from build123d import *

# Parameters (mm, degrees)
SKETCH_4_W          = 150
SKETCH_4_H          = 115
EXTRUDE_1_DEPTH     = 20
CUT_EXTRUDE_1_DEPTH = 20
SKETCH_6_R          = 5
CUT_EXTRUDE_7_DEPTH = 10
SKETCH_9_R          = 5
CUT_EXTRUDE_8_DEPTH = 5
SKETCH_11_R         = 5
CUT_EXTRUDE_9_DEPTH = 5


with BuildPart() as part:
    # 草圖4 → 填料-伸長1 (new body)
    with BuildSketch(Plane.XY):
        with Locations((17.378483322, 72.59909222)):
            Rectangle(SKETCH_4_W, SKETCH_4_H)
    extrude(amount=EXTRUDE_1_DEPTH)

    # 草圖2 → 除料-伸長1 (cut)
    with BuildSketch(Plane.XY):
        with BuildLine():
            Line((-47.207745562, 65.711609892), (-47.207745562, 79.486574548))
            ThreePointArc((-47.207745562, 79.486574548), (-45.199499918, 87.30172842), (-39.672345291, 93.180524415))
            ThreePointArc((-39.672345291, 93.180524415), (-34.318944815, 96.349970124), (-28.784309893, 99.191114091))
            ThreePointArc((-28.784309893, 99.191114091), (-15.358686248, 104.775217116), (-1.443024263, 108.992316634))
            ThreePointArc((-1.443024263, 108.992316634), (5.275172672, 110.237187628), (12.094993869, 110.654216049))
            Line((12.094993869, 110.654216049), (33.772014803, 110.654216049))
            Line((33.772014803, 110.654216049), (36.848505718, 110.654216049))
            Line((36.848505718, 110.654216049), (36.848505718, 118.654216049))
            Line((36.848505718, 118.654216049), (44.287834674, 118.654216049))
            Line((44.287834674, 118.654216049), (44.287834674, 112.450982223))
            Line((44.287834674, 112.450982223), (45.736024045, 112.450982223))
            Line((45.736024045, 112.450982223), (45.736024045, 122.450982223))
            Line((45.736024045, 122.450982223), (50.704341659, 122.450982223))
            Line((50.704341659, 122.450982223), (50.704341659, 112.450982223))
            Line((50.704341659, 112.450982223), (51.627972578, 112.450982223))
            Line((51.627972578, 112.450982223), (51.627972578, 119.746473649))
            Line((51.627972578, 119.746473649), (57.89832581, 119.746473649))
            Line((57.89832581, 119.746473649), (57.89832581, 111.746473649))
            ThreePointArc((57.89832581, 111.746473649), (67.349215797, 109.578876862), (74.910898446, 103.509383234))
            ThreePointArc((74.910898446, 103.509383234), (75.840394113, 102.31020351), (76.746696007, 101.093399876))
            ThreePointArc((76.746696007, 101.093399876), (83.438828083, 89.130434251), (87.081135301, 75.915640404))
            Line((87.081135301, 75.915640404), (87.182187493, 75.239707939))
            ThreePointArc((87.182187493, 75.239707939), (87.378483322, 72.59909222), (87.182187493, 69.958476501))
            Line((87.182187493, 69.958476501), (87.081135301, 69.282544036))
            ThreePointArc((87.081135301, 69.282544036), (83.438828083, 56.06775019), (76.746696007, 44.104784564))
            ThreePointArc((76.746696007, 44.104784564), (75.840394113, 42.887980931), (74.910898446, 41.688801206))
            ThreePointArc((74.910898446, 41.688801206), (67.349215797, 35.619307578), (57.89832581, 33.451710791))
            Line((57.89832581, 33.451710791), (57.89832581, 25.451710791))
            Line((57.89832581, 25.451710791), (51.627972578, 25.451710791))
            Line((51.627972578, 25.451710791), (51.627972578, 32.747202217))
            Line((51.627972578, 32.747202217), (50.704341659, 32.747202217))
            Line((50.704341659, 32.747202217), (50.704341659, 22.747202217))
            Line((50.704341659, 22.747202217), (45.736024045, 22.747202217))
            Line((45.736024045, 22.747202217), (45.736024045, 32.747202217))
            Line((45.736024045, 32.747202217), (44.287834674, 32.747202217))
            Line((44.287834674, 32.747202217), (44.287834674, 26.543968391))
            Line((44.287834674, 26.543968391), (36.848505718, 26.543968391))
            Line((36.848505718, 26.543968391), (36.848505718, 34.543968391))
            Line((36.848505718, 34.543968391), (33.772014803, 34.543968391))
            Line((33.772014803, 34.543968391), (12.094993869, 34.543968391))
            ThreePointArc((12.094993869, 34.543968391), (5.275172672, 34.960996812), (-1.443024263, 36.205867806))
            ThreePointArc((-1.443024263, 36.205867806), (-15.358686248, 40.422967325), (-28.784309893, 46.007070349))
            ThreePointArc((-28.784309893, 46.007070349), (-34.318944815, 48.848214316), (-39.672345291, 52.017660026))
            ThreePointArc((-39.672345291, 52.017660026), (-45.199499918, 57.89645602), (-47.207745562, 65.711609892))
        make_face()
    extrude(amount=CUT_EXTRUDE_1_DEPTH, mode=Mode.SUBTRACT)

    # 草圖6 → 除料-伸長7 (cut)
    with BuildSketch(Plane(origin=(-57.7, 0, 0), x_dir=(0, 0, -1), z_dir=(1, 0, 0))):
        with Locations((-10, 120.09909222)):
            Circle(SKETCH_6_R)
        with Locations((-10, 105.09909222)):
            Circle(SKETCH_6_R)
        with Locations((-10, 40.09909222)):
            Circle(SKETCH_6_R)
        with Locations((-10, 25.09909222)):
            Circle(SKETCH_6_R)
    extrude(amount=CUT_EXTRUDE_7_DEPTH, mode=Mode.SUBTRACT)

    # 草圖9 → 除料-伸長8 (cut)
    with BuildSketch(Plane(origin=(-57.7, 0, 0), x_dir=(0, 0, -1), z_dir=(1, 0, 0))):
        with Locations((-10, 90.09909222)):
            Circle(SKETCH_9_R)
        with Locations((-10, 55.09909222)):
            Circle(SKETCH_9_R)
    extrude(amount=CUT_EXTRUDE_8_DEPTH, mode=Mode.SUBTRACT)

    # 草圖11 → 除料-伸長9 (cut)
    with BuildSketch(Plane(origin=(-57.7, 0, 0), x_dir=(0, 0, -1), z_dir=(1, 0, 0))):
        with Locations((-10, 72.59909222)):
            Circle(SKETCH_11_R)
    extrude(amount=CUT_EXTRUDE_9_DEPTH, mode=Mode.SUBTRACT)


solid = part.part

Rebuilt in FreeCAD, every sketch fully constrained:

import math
import FreeCAD as App
import Part
import Sketcher
Q = App.Units.Quantity

doc = App.newDocument("Part")
params = doc.addObject("Spreadsheet::Sheet", "Params")
for row, (alias, value) in enumerate([
    ("sketch1_width", "150 mm"),
    ("sketch1_height", "115 mm"),
    ("pad1_length", "20 mm"),
    ("sketch2_height", "8 mm"),
    ("sketch2_height2", "10 mm"),
    ("pocket1_length", "20 mm"),
    ("sketch3_diameter", "10 mm"),
    ("pocket2_length", "10 mm"),
    ("sketch4_diameter", "10 mm"),
    ("pocket3_length", "5 mm"),
    ("sketch5_diameter", "10 mm"),
    ("pocket4_length", "5 mm"),
], start=1):
    params.set(f"A{row}", alias)
    params.set(f"B{row}", "=" + value)
    params.setAlias(f"B{row}", alias)

body = doc.addObject("PartDesign::Body", "Body")

sketch1 = body.newObject("Sketcher::SketchObject", "Sketch")
sketch1.AttachmentSupport = (doc.getObject("XY_Plane"), [""])
sketch1.MapMode = "FlatFace"
sketch1.addGeometry(Part.LineSegment(App.Vector(-57.621517, 130.099092, 0), App.Vector(-57.621517, 15.099092, 0)), False)
sketch1.addGeometry(Part.LineSegment(App.Vector(-57.621517, 15.099092, 0), App.Vector(92.378483, 15.099092, 0)), False)
sketch1.addGeometry(Part.LineSegment(App.Vector(92.378483, 15.099092, 0), App.Vector(92.378483, 130.099092, 0)), False)
sketch1.addGeometry(Part.LineSegment(App.Vector(92.378483, 130.099092, 0), App.Vector(-57.621517, 130.099092, 0)), False)
sketch1.addConstraint(Sketcher.Constraint("Coincident", 0, 2, 1, 1))
sketch1.addConstraint(Sketcher.Constraint("Coincident", 1, 2, 2, 1))
sketch1.addConstraint(Sketcher.Constraint("Coincident", 2, 2, 3, 1))
sketch1.addConstraint(Sketcher.Constraint("Coincident", 3, 2, 0, 1))
sketch1.addConstraint(Sketcher.Constraint("Vertical", 0))
sketch1.addConstraint(Sketcher.Constraint("Horizontal", 1))
sketch1.addConstraint(Sketcher.Constraint("Vertical", 2))
sketch1.addConstraint(Sketcher.Constraint("Horizontal", 3))
sketch1.addConstraint(Sketcher.Constraint("DistanceX", 1, 1, 1, 2, Q("150 mm")))
sketch1.addConstraint(Sketcher.Constraint("DistanceY", 0, 2, 0, 1, Q("115 mm")))
sketch1.addConstraint(Sketcher.Constraint("DistanceX", 0, 2, -1, 1, Q("57.621517 mm")))
sketch1.addConstraint(Sketcher.Constraint("DistanceY", -1, 1, 0, 2, Q("15.099092 mm")))
sketch1.setExpression("Constraints[8]", "Params.sketch1_width")
sketch1.setExpression("Constraints[9]", "Params.sketch1_height")
pad1 = body.newObject("PartDesign::Pad", "Pad")
pad1.Profile = sketch1
pad1.setExpression("Length", "Params.pad1_length")

sketch2 = body.newObject("Sketcher::SketchObject", "Sketch001")
sketch2.AttachmentSupport = (doc.getObject("XY_Plane"), [""])
sketch2.MapMode = "FlatFace"
sketch2.addGeometry(Part.LineSegment(App.Vector(-47.207746, 79.486575, 0), App.Vector(-47.207746, 65.71161, 0)), False)
sketch2.addGeometry(Part.ArcOfCircle(Part.Circle(App.Vector(-30.997159, 65.71161, 0), App.Vector(0, 0, 1), 16.210587), math.radians(-180), math.radians(-122.354465)), False)
sketch2.addGeometry(Part.ArcOfCircle(Part.Circle(App.Vector(15.561245, 139.204951, 0), App.Vector(0, 0, 1), 103.210335), math.radians(-122.354465), math.radians(-115.446109)), False)
sketch2.addGeometry(Part.ArcOfCircle(Part.Circle(App.Vector(33.772015, 177.477224, 0), App.Vector(0, 0, 1), 145.594283), math.radians(-115.446109), math.radians(-103.996996)), False)
sketch2.addGeometry(Part.ArcOfCircle(Part.Circle(App.Vector(12.094994, 90.516021, 0), App.Vector(0, 0, 1), 55.972053), math.radians(-103.996996), math.radians(-90)), False)
sketch2.addGeometry(Part.LineSegment(App.Vector(12.094994, 34.543968, 0), App.Vector(36.848506, 34.543968, 0)), False)
sketch2.addGeometry(Part.LineSegment(App.Vector(36.848506, 34.543968, 0), App.Vector(36.848506, 26.543968, 0)), False)
sketch2.addGeometry(Part.LineSegment(App.Vector(36.848506, 26.543968, 0), App.Vector(44.287835, 26.543968, 0)), False)
sketch2.addGeometry(Part.LineSegment(App.Vector(44.287835, 26.543968, 0), App.Vector(44.287835, 32.747202, 0)), False)
sketch2.addGeometry(Part.LineSegment(App.Vector(44.287835, 32.747202, 0), App.Vector(45.736024, 32.747202, 0)), False)
sketch2.addGeometry(Part.LineSegment(App.Vector(45.736024, 32.747202, 0), App.Vector(45.736024, 22.747202, 0)), False)
sketch2.addGeometry(Part.LineSegment(App.Vector(45.736024, 22.747202, 0), App.Vector(50.704342, 22.747202, 0)), False)
sketch2.addGeometry(Part.LineSegment(App.Vector(50.704342, 22.747202, 0), App.Vector(50.704342, 32.747202, 0)), False)
sketch2.addGeometry(Part.LineSegment(App.Vector(50.704342, 32.747202, 0), App.Vector(51.627973, 32.747202, 0)), False)
sketch2.addGeometry(Part.LineSegment(App.Vector(51.627973, 32.747202, 0), App.Vector(51.627973, 25.451711, 0)), False)
sketch2.addGeometry(Part.LineSegment(App.Vector(51.627973, 25.451711, 0), App.Vector(57.898326, 25.451711, 0)), False)
sketch2.addGeometry(Part.LineSegment(App.Vector(57.898326, 25.451711, 0), App.Vector(57.898326, 33.451711, 0)), False)
sketch2.addGeometry(Part.ArcOfCircle(Part.Circle(App.Vector(57.898326, 55.138816, 0), App.Vector(0, 0, 1), 21.687105), math.radians(-90), math.radians(-38.329636)), False)
sketch2.addGeometry(Part.ArcOfCircle(Part.Circle(App.Vector(12.919263, 90.698931, 0), App.Vector(0, 0, 1), 79.025032), math.radians(-38.329636), math.radians(-36.129514)), False)
sketch2.addGeometry(Part.ArcOfCircle(Part.Circle(App.Vector(30.712767, 77.709639, 0), App.Vector(0, 0, 1), 56.994814), math.radians(-36.129514), math.radians(-8.50277)), False)
sketch2.addGeometry(Part.LineSegment(App.Vector(87.081135, 69.282544, 0), App.Vector(87.182187, 69.958477, 0)), False)
sketch2.addGeometry(Part.ArcOfCircle(Part.Circle(App.Vector(69.519257, 72.599092, 0), App.Vector(0, 0, 1), 17.859227), math.radians(-8.50277), math.radians(8.50277)), False)
sketch2.addGeometry(Part.LineSegment(App.Vector(87.182187, 75.239708, 0), App.Vector(87.081135, 75.91564, 0)), False)
sketch2.addGeometry(Part.ArcOfCircle(Part.Circle(App.Vector(30.712767, 67.488545, 0), App.Vector(0, 0, 1), 56.994814), math.radians(8.50277), math.radians(36.129514)), False)
sketch2.addGeometry(Part.ArcOfCircle(Part.Circle(App.Vector(12.919266, 54.499256, 0), App.Vector(0, 0, 1), 79.025028), math.radians(36.129514), math.radians(38.329636)), False)
sketch2.addGeometry(Part.ArcOfCircle(Part.Circle(App.Vector(57.898326, 90.059369, 0), App.Vector(0, 0, 1), 21.687105), math.radians(38.329636), math.radians(90)), False)
sketch2.addGeometry(Part.LineSegment(App.Vector(57.898326, 111.746474, 0), App.Vector(57.898326, 119.746474, 0)), False)
sketch2.addGeometry(Part.LineSegment(App.Vector(57.898326, 119.746474, 0), App.Vector(51.627973, 119.746474, 0)), False)
sketch2.addGeometry(Part.LineSegment(App.Vector(51.627973, 119.746474, 0), App.Vector(51.627973, 112.450982, 0)), False)
sketch2.addGeometry(Part.LineSegment(App.Vector(51.627973, 112.450982, 0), App.Vector(50.704342, 112.450982, 0)), False)
sketch2.addGeometry(Part.LineSegment(App.Vector(50.704342, 112.450982, 0), App.Vector(50.704342, 122.450982, 0)), False)
sketch2.addGeometry(Part.LineSegment(App.Vector(50.704342, 122.450982, 0), App.Vector(45.736024, 122.450982, 0)), False)
sketch2.addGeometry(Part.LineSegment(App.Vector(45.736024, 122.450982, 0), App.Vector(45.736024, 112.450982, 0)), False)
sketch2.addGeometry(Part.LineSegment(App.Vector(45.736024, 112.450982, 0), App.Vector(44.287835, 112.450982, 0)), False)
sketch2.addGeometry(Part.LineSegment(App.Vector(44.287835, 112.450982, 0), App.Vector(44.287835, 118.654216, 0)), False)
sketch2.addGeometry(Part.LineSegment(App.Vector(44.287835, 118.654216, 0), App.Vector(36.848506, 118.654216, 0)), False)
sketch2.addGeometry(Part.LineSegment(App.Vector(36.848506, 118.654216, 0), App.Vector(36.848506, 110.654216, 0)), False)
sketch2.addGeometry(Part.LineSegment(App.Vector(36.848506, 110.654216, 0), App.Vector(12.094994, 110.654216, 0)), False)
sketch2.addGeometry(Part.ArcOfCircle(Part.Circle(App.Vector(12.094994, 54.682163, 0), App.Vector(0, 0, 1), 55.972053), math.radians(90), math.radians(103.996996)), False)
sketch2.addGeometry(Part.ArcOfCircle(Part.Circle(App.Vector(33.772015, -32.27904, 0), App.Vector(0, 0, 1), 145.594282), math.radians(103.996996), math.radians(115.446109)), False)
sketch2.addGeometry(Part.ArcOfCircle(Part.Circle(App.Vector(15.561245, 5.993233, 0), App.Vector(0, 0, 1), 103.210335), math.radians(115.446109), math.radians(122.354465)), False)
sketch2.addGeometry(Part.ArcOfCircle(Part.Circle(App.Vector(-30.997159, 79.486575, 0), App.Vector(0, 0, 1), 16.210587), math.radians(122.354465), math.radians(180)), False)
sketch2.addConstraint(Sketcher.Constraint("Tangent", 0, 2, 1, 1))
sketch2.addConstraint(Sketcher.Constraint("Tangent", 1, 2, 2, 1))
sketch2.addConstraint(Sketcher.Constraint("Tangent", 2, 2, 3, 1))
sketch2.addConstraint(Sketcher.Constraint("Tangent", 3, 2, 4, 1))
sketch2.addConstraint(Sketcher.Constraint("Tangent", 4, 2, 5, 1))
sketch2.addConstraint(Sketcher.Constraint("Coincident", 5, 2, 6, 1))
sketch2.addConstraint(Sketcher.Constraint("Coincident", 6, 2, 7, 1))
sketch2.addConstraint(Sketcher.Constraint("Coincident", 7, 2, 8, 1))
sketch2.addConstraint(Sketcher.Constraint("Coincident", 8, 2, 9, 1))
sketch2.addConstraint(Sketcher.Constraint("Coincident", 9, 2, 10, 1))
sketch2.addConstraint(Sketcher.Constraint("Coincident", 10, 2, 11, 1))
sketch2.addConstraint(Sketcher.Constraint("Coincident", 11, 2, 12, 1))
sketch2.addConstraint(Sketcher.Constraint("Coincident", 12, 2, 13, 1))
sketch2.addConstraint(Sketcher.Constraint("Coincident", 13, 2, 14, 1))
sketch2.addConstraint(Sketcher.Constraint("Coincident", 14, 2, 15, 1))
sketch2.addConstraint(Sketcher.Constraint("Coincident", 15, 2, 16, 1))
sketch2.addConstraint(Sketcher.Constraint("Coincident", 16, 2, 17, 1))
sketch2.addConstraint(Sketcher.Constraint("Tangent", 17, 2, 18, 1))
sketch2.addConstraint(Sketcher.Constraint("Tangent", 18, 2, 19, 1))
sketch2.addConstraint(Sketcher.Constraint("Tangent", 19, 2, 20, 1))
sketch2.addConstraint(Sketcher.Constraint("Tangent", 20, 2, 21, 1))
sketch2.addConstraint(Sketcher.Constraint("Tangent", 21, 2, 22, 1))
sketch2.addConstraint(Sketcher.Constraint("Tangent", 22, 2, 23, 1))
sketch2.addConstraint(Sketcher.Constraint("Tangent", 23, 2, 24, 1))
sketch2.addConstraint(Sketcher.Constraint("Tangent", 24, 2, 25, 1))
sketch2.addConstraint(Sketcher.Constraint("Coincident", 25, 2, 26, 1))
sketch2.addConstraint(Sketcher.Constraint("Coincident", 26, 2, 27, 1))
sketch2.addConstraint(Sketcher.Constraint("Coincident", 27, 2, 28, 1))
sketch2.addConstraint(Sketcher.Constraint("Coincident", 28, 2, 29, 1))
sketch2.addConstraint(Sketcher.Constraint("Coincident", 29, 2, 30, 1))
sketch2.addConstraint(Sketcher.Constraint("Coincident", 30, 2, 31, 1))
sketch2.addConstraint(Sketcher.Constraint("Coincident", 31, 2, 32, 1))
sketch2.addConstraint(Sketcher.Constraint("Coincident", 32, 2, 33, 1))
sketch2.addConstraint(Sketcher.Constraint("Coincident", 33, 2, 34, 1))
sketch2.addConstraint(Sketcher.Constraint("Coincident", 34, 2, 35, 1))
sketch2.addConstraint(Sketcher.Constraint("Coincident", 35, 2, 36, 1))
sketch2.addConstraint(Sketcher.Constraint("Coincident", 36, 2, 37, 1))
sketch2.addConstraint(Sketcher.Constraint("Tangent", 37, 2, 38, 1))
sketch2.addConstraint(Sketcher.Constraint("Tangent", 38, 2, 39, 1))
sketch2.addConstraint(Sketcher.Constraint("Tangent", 39, 2, 40, 1))
sketch2.addConstraint(Sketcher.Constraint("Tangent", 40, 2, 41, 1))
sketch2.addConstraint(Sketcher.Constraint("Tangent", 41, 2, 0, 1))
sketch2.addConstraint(Sketcher.Constraint("Vertical", 0))
sketch2.addConstraint(Sketcher.Constraint("Horizontal", 5))
sketch2.addConstraint(Sketcher.Constraint("Vertical", 6))
sketch2.addConstraint(Sketcher.Constraint("Horizontal", 7))
sketch2.addConstraint(Sketcher.Constraint("Vertical", 8))
sketch2.addConstraint(Sketcher.Constraint("Horizontal", 9))
sketch2.addConstraint(Sketcher.Constraint("Vertical", 10))
sketch2.addConstraint(Sketcher.Constraint("Horizontal", 11))
sketch2.addConstraint(Sketcher.Constraint("Vertical", 12))
sketch2.addConstraint(Sketcher.Constraint("Horizontal", 13))
sketch2.addConstraint(Sketcher.Constraint("Vertical", 14))
sketch2.addConstraint(Sketcher.Constraint("Horizontal", 15))
sketch2.addConstraint(Sketcher.Constraint("Vertical", 16))
sketch2.addConstraint(Sketcher.Constraint("Vertical", 26))
sketch2.addConstraint(Sketcher.Constraint("Horizontal", 27))
sketch2.addConstraint(Sketcher.Constraint("Vertical", 28))
sketch2.addConstraint(Sketcher.Constraint("Horizontal", 29))
sketch2.addConstraint(Sketcher.Constraint("Vertical", 30))
sketch2.addConstraint(Sketcher.Constraint("Horizontal", 31))
sketch2.addConstraint(Sketcher.Constraint("Vertical", 32))
sketch2.addConstraint(Sketcher.Constraint("Horizontal", 33))
sketch2.addConstraint(Sketcher.Constraint("Vertical", 34))
sketch2.addConstraint(Sketcher.Constraint("Horizontal", 35))
sketch2.addConstraint(Sketcher.Constraint("Vertical", 36))
sketch2.addConstraint(Sketcher.Constraint("Horizontal", 37))
sketch2.addConstraint(Sketcher.Constraint("Equal", 19, 23))
sketch2.addConstraint(Sketcher.Constraint("Equal", 17, 25))
sketch2.addConstraint(Sketcher.Constraint("Equal", 4, 38))
sketch2.addConstraint(Sketcher.Constraint("Equal", 3, 39))
sketch2.addConstraint(Sketcher.Constraint("Equal", 2, 40))
sketch2.addConstraint(Sketcher.Constraint("Equal", 1, 41))
sketch2.addConstraint(Sketcher.Constraint("Horizontal", 9, 2, 12, 2))
sketch2.addConstraint(Sketcher.Constraint("Horizontal", 29, 2, 32, 2))
sketch2.addConstraint(Sketcher.Constraint("Vertical", 19, 3, 23, 3))
sketch2.addConstraint(Sketcher.Constraint("Vertical", 17, 3, 25, 3))
sketch2.addConstraint(Sketcher.Constraint("Vertical", 4, 3, 38, 3))
sketch2.addConstraint(Sketcher.Constraint("Vertical", 3, 3, 39, 3))
sketch2.addConstraint(Sketcher.Constraint("Vertical", 2, 3, 40, 3))
sketch2.addConstraint(Sketcher.Constraint("Vertical", 25, 3, 15, 2))
sketch2.addConstraint(Sketcher.Constraint("Vertical", 20, 2, 21, 2))
sketch2.addConstraint(Sketcher.Constraint("Vertical", 18, 2, 23, 2))
sketch2.addConstraint(Sketcher.Constraint("Vertical", 16, 2, 25, 2))
sketch2.addConstraint(Sketcher.Constraint("Vertical", 14, 2, 27, 2))
sketch2.addConstraint(Sketcher.Constraint("Vertical", 12, 2, 29, 2))
sketch2.addConstraint(Sketcher.Constraint("Vertical", 10, 2, 31, 2))
sketch2.addConstraint(Sketcher.Constraint("Vertical", 8, 2, 33, 2))
sketch2.addConstraint(Sketcher.Constraint("Vertical", 6, 2, 35, 2))
sketch2.addConstraint(Sketcher.Constraint("Equal", 6, 16))
sketch2.addConstraint(Sketcher.Constraint("Equal", 16, 26))
sketch2.addConstraint(Sketcher.Constraint("Equal", 14, 28))
sketch2.addConstraint(Sketcher.Constraint("Equal", 12, 30))
sketch2.addConstraint(Sketcher.Constraint("Equal", 8, 34))
sketch2.addConstraint(Sketcher.Constraint("Equal", 26, 36))
sketch2.addConstraint(Sketcher.Constraint("DistanceY", 6, 2, 6, 1, Q("8 mm")))
sketch2.addConstraint(Sketcher.Constraint("DistanceY", 10, 2, 10, 1, Q("10 mm")))
sketch2.addConstraint(Sketcher.Constraint("Radius", 18, Q("79.025032 mm")))
sketch2.addConstraint(Sketcher.Constraint("Radius", 24, Q("79.025028 mm")))
sketch2.addConstraint(Sketcher.Constraint("Radius", 1, Q("16.210587 mm")))
sketch2.addConstraint(Sketcher.Constraint("Radius", 2, Q("103.210335 mm")))
sketch2.addConstraint(Sketcher.Constraint("Radius", 3, Q("145.594283 mm")))
sketch2.addConstraint(Sketcher.Constraint("Radius", 4, Q("55.972053 mm")))
sketch2.addConstraint(Sketcher.Constraint("Radius", 17, Q("21.687105 mm")))
sketch2.addConstraint(Sketcher.Constraint("Radius", 19, Q("56.994814 mm")))
sketch2.addConstraint(Sketcher.Constraint("Radius", 21, Q("17.859227 mm")))
sketch2.addConstraint(Sketcher.Constraint("DistanceX", 5, 1, 5, 2, Q("24.753512 mm")))
sketch2.addConstraint(Sketcher.Constraint("DistanceX", 7, 1, 7, 2, Q("7.439329 mm")))
sketch2.addConstraint(Sketcher.Constraint("DistanceX", 9, 1, 9, 2, Q("1.448189 mm")))
sketch2.addConstraint(Sketcher.Constraint("DistanceX", 13, 1, 13, 2, Q("0.923631 mm")))
sketch2.addConstraint(Sketcher.Constraint("DistanceY", 14, 2, 14, 1, Q("7.295491 mm")))
sketch2.addConstraint(Sketcher.Constraint("DistanceX", -1, 1, 17, 2, Q("74.910898 mm")))
sketch2.addConstraint(Sketcher.Constraint("DistanceY", -1, 1, 17, 2, Q("41.688801 mm")))
sketch2.addConstraint(Sketcher.Constraint("DistanceY", -1, 1, 23, 2, Q("101.0934 mm")))
sketch2.addConstraint(Sketcher.Constraint("DistanceX", 24, 3, 23, 3, Q("17.793501 mm")))
sketch2.addConstraint(Sketcher.Constraint("DistanceX", 0, 2, 1, 2, Q("7.5354 mm")))
sketch2.addConstraint(Sketcher.Constraint("DistanceY", 4, 2, 3, 2, Q("1.661899 mm")))
sketch2.addConstraint(Sketcher.Constraint("DistanceX", 9, 2, 17, 3, Q("12.162302 mm")))
sketch2.addConstraint(Sketcher.Constraint("DistanceY", 13, 2, 17, 2, Q("8.941599 mm")))
sketch2.addConstraint(Sketcher.Constraint("DistanceX", 11, 1, 11, 2, Q("4.968318 mm")))
sketch2.addConstraint(Sketcher.Constraint("DistanceY", 0, 2, 0, 1, Q("13.774965 mm")))
sketch2.addConstraint(Sketcher.Constraint("DistanceY", 8, 1, 8, 2, Q("6.203234 mm")))
sketch2.addConstraint(Sketcher.Constraint("DistanceY", -1, 1, 22, 2, Q("75.91564 mm")))
sketch2.setExpression("Constraints[95]", "Params.sketch2_height")
sketch2.setExpression("Constraints[96]", "Params.sketch2_height2")
pocket1 = body.newObject("PartDesign::Pocket", "Pocket")
pocket1.Profile = sketch2
pocket1.setExpression("Length", "Params.pocket1_length")
pocket1.Reversed = True

sketch3 = body.newObject("Sketcher::SketchObject", "Sketch002")
sketch3.AttachmentSupport = (doc.getObject("YZ_Plane"), [""])
sketch3.MapMode = "FlatFace"
sketch3.AttachmentOffset = App.Placement(App.Vector(0, 0, -57.7), App.Rotation())
sketch3.addGeometry(Part.Circle(App.Vector(120.099092, 10, 0), App.Vector(0, 0, 1), 5), False)
sketch3.addGeometry(Part.Circle(App.Vector(105.099092, 10, 0), App.Vector(0, 0, 1), 5), False)
sketch3.addGeometry(Part.Circle(App.Vector(40.099092, 10, 0), App.Vector(0, 0, 1), 5), False)
sketch3.addGeometry(Part.Circle(App.Vector(25.099092, 10, 0), App.Vector(0, 0, 1), 5), False)
sketch3.addConstraint(Sketcher.Constraint("Equal", 0, 1))
sketch3.addConstraint(Sketcher.Constraint("Equal", 1, 2))
sketch3.addConstraint(Sketcher.Constraint("Equal", 2, 3))
sketch3.addConstraint(Sketcher.Constraint("Horizontal", 0, 3, 1, 3))
sketch3.addConstraint(Sketcher.Constraint("Horizontal", 1, 3, 2, 3))
sketch3.addConstraint(Sketcher.Constraint("Horizontal", 2, 3, 3, 3))
sketch3.addConstraint(Sketcher.Constraint("Diameter", 0, Q("10 mm")))
sketch3.addConstraint(Sketcher.Constraint("DistanceY", -1, 1, 0, 3, Q("10 mm")))
sketch3.addConstraint(Sketcher.Constraint("DistanceX", 1, 3, 0, 3, Q("15 mm")))
sketch3.addConstraint(Sketcher.Constraint("DistanceX", 2, 3, 1, 3, Q("65 mm")))
sketch3.addConstraint(Sketcher.Constraint("DistanceX", 3, 3, 2, 3, Q("15 mm")))
sketch3.addConstraint(Sketcher.Constraint("DistanceX", -1, 1, 0, 3, Q("120.099092 mm")))
sketch3.setExpression("Constraints[6]", "Params.sketch3_diameter")
pocket2 = body.newObject("PartDesign::Pocket", "Pocket001")
pocket2.Profile = sketch3
pocket2.setExpression("Length", "Params.pocket2_length")
pocket2.Reversed = True

sketch4 = body.newObject("Sketcher::SketchObject", "Sketch003")
sketch4.AttachmentSupport = (doc.getObject("YZ_Plane"), [""])
sketch4.MapMode = "FlatFace"
sketch4.AttachmentOffset = App.Placement(App.Vector(0, 0, -57.7), App.Rotation())
sketch4.addGeometry(Part.Circle(App.Vector(90.099092, 10, 0), App.Vector(0, 0, 1), 5), False)
sketch4.addGeometry(Part.Circle(App.Vector(55.099092, 10, 0), App.Vector(0, 0, 1), 5), False)
sketch4.addConstraint(Sketcher.Constraint("Equal", 0, 1))
sketch4.addConstraint(Sketcher.Constraint("Horizontal", 0, 3, 1, 3))
sketch4.addConstraint(Sketcher.Constraint("Diameter", 0, Q("10 mm")))
sketch4.addConstraint(Sketcher.Constraint("DistanceY", -1, 1, 0, 3, Q("10 mm")))
sketch4.addConstraint(Sketcher.Constraint("DistanceX", 1, 3, 0, 3, Q("35 mm")))
sketch4.addConstraint(Sketcher.Constraint("DistanceX", -1, 1, 0, 3, Q("90.099092 mm")))
sketch4.setExpression("Constraints[2]", "Params.sketch4_diameter")
pocket3 = body.newObject("PartDesign::Pocket", "Pocket002")
pocket3.Profile = sketch4
pocket3.setExpression("Length", "Params.pocket3_length")
pocket3.Reversed = True

sketch5 = body.newObject("Sketcher::SketchObject", "Sketch004")
sketch5.AttachmentSupport = (doc.getObject("YZ_Plane"), [""])
sketch5.MapMode = "FlatFace"
sketch5.AttachmentOffset = App.Placement(App.Vector(0, 0, -57.7), App.Rotation())
sketch5.addGeometry(Part.Circle(App.Vector(72.599092, 10, 0), App.Vector(0, 0, 1), 5), False)
sketch5.addConstraint(Sketcher.Constraint("Diameter", 0, Q("10 mm")))
sketch5.addConstraint(Sketcher.Constraint("DistanceY", -1, 1, 0, 3, Q("10 mm")))
sketch5.addConstraint(Sketcher.Constraint("DistanceX", -1, 1, 0, 3, Q("72.599092 mm")))
sketch5.setExpression("Constraints[0]", "Params.sketch5_diameter")
pocket4 = body.newObject("PartDesign::Pocket", "Pocket003")
pocket4.Profile = sketch5
pocket4.setExpression("Length", "Params.pocket4_length")
pocket4.Reversed = True

doc.recompute()
